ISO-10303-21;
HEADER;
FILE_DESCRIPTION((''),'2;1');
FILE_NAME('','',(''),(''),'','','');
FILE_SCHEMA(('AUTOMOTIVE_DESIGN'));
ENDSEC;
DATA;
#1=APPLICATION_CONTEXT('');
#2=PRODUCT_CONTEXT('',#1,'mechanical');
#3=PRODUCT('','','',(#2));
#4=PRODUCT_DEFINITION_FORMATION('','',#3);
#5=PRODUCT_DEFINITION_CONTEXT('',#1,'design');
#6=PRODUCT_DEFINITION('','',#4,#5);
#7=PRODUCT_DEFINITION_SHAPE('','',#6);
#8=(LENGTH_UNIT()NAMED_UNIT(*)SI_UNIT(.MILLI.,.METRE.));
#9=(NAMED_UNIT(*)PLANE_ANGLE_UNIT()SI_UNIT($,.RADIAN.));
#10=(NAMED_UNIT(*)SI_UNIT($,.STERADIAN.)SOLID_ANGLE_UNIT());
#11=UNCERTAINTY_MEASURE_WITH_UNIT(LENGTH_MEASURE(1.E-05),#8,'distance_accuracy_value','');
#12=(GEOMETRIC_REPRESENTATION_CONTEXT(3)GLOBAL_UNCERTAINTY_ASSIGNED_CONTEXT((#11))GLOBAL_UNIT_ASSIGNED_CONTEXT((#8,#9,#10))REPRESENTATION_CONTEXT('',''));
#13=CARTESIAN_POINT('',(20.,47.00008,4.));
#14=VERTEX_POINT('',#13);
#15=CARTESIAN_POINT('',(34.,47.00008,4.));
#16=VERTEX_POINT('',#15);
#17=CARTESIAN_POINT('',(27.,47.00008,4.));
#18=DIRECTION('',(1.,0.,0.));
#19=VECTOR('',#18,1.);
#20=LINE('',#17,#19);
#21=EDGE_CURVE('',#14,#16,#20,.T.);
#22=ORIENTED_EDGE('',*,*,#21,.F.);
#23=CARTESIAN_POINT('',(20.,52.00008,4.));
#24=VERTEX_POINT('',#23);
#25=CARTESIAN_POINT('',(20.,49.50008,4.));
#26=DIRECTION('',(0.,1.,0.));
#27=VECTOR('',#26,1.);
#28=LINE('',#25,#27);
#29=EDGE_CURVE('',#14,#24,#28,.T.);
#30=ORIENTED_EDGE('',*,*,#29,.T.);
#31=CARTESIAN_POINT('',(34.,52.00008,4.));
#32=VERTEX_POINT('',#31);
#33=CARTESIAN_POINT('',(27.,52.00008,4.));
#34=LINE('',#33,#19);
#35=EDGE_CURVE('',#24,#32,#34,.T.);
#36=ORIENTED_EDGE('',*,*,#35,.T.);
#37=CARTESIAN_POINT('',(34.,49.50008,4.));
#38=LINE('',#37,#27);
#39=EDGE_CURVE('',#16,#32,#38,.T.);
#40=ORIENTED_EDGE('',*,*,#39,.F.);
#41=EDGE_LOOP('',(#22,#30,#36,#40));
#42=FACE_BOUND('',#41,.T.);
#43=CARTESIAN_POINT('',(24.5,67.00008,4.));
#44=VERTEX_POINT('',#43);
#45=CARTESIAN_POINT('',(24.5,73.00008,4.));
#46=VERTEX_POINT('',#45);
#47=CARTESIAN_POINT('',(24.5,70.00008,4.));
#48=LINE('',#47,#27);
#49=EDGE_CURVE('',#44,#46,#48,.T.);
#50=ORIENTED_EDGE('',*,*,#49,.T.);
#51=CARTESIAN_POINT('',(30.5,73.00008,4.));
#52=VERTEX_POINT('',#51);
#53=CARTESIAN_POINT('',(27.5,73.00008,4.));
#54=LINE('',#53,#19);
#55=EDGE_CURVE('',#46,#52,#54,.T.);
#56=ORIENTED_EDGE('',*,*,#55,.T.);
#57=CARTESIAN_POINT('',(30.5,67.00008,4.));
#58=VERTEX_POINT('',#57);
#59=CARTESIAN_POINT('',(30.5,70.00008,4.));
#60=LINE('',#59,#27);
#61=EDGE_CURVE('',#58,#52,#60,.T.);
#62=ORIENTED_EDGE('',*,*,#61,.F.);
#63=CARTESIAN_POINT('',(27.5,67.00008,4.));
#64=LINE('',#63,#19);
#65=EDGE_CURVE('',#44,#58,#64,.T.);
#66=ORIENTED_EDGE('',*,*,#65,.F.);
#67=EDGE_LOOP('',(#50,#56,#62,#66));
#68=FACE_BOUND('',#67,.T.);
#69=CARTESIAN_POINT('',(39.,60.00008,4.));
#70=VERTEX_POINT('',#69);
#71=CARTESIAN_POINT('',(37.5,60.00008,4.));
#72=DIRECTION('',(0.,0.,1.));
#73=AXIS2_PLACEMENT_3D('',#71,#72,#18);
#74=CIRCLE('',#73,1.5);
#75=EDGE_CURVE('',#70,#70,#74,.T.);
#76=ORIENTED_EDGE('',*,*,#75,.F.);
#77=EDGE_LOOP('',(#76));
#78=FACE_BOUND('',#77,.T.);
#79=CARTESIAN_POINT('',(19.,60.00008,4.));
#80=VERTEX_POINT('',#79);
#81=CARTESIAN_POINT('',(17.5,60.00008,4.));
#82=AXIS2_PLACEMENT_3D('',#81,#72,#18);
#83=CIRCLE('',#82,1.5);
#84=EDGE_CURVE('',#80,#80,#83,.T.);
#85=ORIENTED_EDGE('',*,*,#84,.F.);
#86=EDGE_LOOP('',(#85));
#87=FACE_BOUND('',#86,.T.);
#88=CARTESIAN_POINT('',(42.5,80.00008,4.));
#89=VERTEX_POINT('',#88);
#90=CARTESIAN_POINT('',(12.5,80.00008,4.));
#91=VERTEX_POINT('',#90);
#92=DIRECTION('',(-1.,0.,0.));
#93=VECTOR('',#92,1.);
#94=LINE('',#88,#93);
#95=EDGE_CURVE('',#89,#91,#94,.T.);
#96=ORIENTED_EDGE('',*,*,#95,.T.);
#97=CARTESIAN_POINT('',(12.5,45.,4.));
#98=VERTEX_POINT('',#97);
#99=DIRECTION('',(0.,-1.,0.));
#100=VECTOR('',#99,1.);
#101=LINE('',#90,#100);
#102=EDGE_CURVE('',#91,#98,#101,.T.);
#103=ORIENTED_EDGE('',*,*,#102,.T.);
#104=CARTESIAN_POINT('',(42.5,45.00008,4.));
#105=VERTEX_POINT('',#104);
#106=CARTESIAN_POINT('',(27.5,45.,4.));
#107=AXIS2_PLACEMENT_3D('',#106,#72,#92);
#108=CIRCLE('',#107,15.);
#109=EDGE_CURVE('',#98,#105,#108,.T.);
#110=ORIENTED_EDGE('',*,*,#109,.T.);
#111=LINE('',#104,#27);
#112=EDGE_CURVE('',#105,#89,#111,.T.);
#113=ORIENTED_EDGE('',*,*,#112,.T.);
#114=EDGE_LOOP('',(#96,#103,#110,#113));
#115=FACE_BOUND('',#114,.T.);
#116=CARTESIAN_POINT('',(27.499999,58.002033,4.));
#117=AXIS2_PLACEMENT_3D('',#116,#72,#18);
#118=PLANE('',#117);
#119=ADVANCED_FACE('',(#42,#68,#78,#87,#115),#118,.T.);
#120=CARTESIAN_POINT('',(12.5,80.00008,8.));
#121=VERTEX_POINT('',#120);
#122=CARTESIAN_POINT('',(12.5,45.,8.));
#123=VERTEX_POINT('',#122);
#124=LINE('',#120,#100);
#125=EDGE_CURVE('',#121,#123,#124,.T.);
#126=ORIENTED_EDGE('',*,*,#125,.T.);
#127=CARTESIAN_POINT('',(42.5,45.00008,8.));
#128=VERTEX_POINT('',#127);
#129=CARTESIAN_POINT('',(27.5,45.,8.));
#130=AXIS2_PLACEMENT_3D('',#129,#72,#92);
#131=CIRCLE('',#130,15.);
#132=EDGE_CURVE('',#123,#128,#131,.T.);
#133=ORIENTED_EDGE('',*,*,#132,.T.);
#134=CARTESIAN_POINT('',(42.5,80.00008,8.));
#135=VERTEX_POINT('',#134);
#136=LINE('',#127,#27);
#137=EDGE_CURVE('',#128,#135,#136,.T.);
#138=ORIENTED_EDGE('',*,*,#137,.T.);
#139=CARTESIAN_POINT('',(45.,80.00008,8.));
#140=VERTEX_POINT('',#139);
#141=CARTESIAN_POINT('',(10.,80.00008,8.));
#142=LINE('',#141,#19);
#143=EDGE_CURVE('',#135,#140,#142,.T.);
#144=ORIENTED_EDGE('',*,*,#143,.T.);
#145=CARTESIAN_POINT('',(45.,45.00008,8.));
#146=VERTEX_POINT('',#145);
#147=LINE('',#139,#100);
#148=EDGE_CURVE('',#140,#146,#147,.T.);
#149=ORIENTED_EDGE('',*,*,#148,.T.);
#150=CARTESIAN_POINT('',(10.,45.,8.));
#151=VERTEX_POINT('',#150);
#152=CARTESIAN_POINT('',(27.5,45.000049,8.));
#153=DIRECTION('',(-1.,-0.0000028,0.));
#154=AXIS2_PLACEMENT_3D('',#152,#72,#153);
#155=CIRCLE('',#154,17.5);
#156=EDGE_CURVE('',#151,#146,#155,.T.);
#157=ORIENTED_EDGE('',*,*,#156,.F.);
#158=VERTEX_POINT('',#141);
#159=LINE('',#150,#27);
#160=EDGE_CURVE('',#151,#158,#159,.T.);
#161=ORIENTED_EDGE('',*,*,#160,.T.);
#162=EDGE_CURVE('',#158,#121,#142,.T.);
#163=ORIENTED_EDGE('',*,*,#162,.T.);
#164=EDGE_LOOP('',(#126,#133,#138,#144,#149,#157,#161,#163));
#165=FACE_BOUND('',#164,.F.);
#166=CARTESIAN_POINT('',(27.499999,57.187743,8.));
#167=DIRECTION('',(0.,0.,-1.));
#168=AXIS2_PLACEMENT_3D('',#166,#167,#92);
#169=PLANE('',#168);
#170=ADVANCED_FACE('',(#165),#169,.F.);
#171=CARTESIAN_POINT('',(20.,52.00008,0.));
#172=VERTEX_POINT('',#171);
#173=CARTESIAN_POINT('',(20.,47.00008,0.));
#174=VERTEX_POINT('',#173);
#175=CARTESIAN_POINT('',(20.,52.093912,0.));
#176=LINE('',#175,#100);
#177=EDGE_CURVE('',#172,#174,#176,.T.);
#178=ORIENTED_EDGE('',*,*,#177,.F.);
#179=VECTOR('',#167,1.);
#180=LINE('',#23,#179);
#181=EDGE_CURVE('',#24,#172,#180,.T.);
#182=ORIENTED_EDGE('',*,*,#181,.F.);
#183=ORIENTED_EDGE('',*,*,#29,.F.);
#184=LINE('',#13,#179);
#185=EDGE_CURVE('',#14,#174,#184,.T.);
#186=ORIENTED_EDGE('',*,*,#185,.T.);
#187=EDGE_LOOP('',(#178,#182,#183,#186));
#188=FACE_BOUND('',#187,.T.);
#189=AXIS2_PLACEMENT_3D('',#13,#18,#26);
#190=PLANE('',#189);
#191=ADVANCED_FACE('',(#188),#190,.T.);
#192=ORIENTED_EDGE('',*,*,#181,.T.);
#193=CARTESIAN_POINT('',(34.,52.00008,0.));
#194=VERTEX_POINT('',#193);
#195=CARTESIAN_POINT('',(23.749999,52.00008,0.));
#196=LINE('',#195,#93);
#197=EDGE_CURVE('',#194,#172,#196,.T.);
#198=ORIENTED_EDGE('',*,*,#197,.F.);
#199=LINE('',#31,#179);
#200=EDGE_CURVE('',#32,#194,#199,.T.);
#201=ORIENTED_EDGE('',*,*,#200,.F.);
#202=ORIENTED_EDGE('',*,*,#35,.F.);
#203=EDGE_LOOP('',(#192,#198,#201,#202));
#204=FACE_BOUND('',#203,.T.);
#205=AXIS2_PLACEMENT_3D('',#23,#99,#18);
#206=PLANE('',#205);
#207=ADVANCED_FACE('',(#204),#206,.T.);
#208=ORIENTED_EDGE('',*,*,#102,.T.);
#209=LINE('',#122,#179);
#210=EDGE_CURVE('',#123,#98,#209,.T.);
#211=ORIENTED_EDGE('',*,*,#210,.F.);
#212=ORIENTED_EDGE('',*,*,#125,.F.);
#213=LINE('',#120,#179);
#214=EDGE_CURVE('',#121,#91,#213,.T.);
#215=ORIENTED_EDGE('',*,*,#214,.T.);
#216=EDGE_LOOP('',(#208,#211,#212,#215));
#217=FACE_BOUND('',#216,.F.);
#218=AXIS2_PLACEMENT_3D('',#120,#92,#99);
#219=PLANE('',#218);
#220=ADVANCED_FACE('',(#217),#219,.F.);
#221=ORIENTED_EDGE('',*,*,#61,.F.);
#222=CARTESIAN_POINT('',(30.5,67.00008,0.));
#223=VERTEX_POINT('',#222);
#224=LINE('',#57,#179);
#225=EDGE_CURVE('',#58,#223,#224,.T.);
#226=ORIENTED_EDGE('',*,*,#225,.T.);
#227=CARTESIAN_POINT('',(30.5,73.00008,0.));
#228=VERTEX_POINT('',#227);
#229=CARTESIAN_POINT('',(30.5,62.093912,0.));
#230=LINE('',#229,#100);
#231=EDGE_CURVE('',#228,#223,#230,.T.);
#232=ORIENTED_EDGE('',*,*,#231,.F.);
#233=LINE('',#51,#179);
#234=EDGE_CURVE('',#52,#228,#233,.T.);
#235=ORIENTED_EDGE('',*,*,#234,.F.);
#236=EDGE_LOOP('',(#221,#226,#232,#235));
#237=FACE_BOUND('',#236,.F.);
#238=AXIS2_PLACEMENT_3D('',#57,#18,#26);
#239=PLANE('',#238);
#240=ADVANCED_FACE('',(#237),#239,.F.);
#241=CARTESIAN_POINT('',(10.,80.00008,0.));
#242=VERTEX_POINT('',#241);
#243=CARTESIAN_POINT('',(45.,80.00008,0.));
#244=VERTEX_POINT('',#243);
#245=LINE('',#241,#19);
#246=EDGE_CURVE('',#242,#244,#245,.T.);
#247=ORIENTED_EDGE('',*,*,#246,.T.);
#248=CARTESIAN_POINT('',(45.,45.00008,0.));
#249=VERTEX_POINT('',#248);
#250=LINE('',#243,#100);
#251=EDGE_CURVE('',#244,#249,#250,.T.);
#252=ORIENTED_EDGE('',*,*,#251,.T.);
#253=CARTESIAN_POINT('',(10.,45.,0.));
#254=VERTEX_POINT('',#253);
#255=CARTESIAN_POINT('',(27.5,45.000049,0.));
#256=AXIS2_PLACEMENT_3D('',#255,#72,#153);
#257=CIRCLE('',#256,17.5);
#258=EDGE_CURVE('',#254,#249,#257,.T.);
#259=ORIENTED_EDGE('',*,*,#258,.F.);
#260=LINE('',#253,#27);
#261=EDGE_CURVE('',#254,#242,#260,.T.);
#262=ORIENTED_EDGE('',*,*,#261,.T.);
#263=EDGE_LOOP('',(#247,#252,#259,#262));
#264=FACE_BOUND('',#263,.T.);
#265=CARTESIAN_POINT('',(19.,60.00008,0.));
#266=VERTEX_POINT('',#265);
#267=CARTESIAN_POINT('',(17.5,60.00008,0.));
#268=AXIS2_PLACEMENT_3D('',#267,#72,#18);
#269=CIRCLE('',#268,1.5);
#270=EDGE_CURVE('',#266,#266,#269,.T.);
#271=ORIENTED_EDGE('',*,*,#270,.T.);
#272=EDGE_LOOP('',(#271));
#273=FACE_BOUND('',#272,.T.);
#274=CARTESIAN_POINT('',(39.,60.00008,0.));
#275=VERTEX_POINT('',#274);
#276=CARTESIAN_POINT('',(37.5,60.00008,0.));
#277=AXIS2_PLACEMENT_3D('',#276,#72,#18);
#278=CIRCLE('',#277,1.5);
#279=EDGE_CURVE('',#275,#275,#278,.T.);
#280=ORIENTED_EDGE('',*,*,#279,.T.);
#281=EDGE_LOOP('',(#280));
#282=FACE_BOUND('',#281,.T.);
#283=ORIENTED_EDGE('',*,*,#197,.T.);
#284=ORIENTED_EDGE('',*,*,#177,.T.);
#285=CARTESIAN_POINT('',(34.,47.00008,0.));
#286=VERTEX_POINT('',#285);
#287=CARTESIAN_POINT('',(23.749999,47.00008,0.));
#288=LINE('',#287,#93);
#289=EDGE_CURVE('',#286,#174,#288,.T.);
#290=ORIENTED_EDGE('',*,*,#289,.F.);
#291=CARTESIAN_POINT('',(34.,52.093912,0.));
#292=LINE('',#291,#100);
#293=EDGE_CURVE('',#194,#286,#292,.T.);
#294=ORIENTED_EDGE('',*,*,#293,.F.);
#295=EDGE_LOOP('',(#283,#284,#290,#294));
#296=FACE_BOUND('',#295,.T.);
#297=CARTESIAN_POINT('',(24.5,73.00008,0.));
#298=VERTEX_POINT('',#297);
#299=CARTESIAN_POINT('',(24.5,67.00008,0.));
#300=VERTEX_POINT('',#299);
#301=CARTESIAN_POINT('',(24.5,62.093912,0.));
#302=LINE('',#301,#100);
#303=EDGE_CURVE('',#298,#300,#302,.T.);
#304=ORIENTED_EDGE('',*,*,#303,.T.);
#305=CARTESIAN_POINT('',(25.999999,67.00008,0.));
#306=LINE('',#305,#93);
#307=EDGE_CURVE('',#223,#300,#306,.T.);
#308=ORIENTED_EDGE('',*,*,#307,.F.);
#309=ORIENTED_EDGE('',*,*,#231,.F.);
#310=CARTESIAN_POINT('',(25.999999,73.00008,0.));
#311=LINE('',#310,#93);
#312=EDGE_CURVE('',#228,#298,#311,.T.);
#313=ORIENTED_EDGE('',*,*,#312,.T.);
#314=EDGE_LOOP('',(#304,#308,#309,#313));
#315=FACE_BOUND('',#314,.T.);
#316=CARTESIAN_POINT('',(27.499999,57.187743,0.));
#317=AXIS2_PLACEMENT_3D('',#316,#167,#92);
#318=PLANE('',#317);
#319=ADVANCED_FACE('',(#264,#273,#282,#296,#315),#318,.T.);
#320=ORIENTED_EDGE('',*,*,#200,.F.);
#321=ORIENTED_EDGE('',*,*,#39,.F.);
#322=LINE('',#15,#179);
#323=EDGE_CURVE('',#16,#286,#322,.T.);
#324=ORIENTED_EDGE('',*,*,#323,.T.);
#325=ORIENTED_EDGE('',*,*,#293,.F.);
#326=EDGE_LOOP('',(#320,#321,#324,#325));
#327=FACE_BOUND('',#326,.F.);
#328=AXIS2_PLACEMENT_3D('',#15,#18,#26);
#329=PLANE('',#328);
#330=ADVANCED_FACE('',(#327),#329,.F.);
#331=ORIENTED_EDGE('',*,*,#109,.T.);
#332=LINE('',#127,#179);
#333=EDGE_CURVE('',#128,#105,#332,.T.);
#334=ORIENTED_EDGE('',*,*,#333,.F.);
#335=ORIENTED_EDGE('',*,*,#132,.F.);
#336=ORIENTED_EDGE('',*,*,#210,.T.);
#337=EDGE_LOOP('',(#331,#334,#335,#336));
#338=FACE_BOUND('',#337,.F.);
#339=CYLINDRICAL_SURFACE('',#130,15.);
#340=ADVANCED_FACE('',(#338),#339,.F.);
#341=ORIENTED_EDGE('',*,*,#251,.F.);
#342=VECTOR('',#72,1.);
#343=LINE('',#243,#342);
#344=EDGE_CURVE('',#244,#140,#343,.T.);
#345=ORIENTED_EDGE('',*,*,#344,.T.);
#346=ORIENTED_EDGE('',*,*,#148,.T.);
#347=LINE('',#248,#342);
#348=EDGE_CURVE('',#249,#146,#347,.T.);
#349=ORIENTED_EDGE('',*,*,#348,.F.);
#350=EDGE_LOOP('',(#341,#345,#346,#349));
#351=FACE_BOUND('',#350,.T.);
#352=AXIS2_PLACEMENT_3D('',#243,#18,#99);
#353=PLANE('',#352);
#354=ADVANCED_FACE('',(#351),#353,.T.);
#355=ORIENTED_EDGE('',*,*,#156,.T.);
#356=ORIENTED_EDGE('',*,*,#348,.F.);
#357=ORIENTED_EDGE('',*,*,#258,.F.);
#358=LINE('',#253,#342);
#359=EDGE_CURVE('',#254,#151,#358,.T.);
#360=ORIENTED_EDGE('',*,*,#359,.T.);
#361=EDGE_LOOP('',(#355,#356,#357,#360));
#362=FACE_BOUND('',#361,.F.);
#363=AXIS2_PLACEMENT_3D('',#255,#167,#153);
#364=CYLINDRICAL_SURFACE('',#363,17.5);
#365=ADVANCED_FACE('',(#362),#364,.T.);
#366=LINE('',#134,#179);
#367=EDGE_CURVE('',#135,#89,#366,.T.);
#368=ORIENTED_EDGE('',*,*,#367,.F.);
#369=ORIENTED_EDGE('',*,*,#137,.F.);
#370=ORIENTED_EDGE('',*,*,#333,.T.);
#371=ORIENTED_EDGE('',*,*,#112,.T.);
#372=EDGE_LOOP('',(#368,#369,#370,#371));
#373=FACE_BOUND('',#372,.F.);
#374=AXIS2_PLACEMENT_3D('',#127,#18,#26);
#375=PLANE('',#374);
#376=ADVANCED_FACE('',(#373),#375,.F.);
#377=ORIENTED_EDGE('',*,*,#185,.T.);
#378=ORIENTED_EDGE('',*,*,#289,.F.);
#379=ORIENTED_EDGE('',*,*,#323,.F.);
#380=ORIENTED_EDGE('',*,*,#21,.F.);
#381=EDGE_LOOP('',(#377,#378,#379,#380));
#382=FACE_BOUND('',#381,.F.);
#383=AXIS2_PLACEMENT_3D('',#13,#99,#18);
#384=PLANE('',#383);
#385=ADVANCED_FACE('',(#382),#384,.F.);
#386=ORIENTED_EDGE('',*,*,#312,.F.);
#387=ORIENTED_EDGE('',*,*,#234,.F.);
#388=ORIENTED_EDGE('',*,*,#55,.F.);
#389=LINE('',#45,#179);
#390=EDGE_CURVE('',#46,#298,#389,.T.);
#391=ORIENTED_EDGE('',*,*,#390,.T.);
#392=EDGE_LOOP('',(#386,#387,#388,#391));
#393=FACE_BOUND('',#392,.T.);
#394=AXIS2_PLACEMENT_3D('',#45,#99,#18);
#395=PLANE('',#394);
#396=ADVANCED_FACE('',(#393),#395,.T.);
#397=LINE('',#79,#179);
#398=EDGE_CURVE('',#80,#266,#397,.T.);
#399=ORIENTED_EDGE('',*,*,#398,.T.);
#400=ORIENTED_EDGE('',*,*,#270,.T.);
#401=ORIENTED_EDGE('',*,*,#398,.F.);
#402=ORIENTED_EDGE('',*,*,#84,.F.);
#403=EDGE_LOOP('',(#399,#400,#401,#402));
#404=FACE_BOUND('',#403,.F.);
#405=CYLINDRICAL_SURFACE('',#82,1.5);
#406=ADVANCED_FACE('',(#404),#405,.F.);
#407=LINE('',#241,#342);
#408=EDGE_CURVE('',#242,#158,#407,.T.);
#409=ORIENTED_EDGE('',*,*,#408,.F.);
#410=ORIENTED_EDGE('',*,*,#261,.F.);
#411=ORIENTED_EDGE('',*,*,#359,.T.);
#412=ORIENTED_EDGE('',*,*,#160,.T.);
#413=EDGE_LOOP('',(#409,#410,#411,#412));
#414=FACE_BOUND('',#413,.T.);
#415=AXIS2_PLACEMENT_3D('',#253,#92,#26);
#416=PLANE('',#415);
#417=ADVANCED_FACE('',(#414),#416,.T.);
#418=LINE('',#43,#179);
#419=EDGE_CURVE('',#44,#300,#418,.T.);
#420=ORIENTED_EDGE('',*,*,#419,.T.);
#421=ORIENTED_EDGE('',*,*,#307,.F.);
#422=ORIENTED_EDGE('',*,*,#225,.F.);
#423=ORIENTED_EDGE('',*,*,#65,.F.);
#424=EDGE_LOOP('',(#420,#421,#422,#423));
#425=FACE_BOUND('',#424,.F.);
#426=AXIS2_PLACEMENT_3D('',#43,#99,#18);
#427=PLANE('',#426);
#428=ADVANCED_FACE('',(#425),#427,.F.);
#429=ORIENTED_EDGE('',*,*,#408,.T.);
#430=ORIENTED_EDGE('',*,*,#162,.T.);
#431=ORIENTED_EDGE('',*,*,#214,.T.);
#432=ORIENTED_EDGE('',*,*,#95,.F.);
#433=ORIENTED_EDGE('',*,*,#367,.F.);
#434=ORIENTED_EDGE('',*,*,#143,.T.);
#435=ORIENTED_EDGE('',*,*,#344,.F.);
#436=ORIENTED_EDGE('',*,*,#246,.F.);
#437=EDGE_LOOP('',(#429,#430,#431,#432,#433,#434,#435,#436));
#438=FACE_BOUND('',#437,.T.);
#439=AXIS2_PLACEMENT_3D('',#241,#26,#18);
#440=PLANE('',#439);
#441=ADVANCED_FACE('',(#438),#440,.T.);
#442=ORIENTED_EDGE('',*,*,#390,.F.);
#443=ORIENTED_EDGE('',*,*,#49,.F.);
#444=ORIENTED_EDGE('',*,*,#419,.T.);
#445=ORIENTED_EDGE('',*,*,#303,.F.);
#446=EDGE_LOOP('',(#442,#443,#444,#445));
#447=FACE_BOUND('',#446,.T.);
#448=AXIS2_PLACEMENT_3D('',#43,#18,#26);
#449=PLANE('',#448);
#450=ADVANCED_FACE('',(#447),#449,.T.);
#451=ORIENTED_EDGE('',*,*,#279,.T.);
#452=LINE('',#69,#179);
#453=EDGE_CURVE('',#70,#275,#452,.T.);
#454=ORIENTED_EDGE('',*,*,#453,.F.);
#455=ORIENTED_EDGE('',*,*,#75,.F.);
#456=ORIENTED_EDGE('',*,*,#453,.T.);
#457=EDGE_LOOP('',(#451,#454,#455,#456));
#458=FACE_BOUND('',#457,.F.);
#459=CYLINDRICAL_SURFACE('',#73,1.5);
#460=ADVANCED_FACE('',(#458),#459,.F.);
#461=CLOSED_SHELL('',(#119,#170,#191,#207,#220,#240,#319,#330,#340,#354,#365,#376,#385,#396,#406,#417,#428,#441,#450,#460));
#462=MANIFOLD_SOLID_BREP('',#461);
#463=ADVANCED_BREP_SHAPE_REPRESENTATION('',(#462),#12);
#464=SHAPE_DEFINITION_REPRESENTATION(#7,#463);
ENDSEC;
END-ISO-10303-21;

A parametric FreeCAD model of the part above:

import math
import FreeCAD as App
import Part
import Sketcher
from FreeCAD import Vector
Q = App.Units.Quantity


def add_polygon(sketch, points):
    """Adds a closed chain of lines whose ends are joined by coincident constraints."""
    first, n = sketch.GeometryCount, len(points)
    for a, b in zip(points, points[1:] + points[:1]):
        sketch.addGeometry(Part.LineSegment(App.Vector(*a, 0), App.Vector(*b, 0)), False)
    for i in range(n):
        sketch.addConstraint(Sketcher.Constraint("Coincident", first + i, 2, first + (i + 1) % n, 1))

doc = App.newDocument("Part")
body = doc.addObject("PartDesign::Body", "Body")

sketch1 = doc.addObject("Sketcher::SketchObject", "Sketch")
body.addObject(sketch1)
sketch1.AttachmentSupport = (doc.XY_Plane, [""])
sketch1.MapMode = "FlatFace"
sketch1.addGeometry([
    Part.LineSegment(Vector(45, 80.00008, 0), Vector(10, 80.00008, 0)),
    Part.LineSegment(Vector(10, 80.00008, 0), Vector(10, 45, 0)),
    Part.ArcOfCircle(Part.Circle(Vector(27.5, 45.000049, 0), Vector(0, 0, 1), 17.5), math.radians(-179.99984), math.radians(0.000101)),
    Part.LineSegment(Vector(45, 45.00008, 0), Vector(45, 80.00008, 0)),
], False)
sketch1.addConstraint([
    Sketcher.Constraint("Coincident", 0, 2, 1, 1),
    Sketcher.Constraint("Coincident", 1, 2, 2, 1),
    Sketcher.Constraint("Coincident", 2, 2, 3, 1),
    Sketcher.Constraint("Coincident", 3, 2, 0, 1),
    Sketcher.Constraint("Horizontal", 0),
    Sketcher.Constraint("Vertical", 1),
    Sketcher.Constraint("Vertical", 3),
    Sketcher.Constraint("Radius", 2, Q("17.5 mm")),
    Sketcher.Constraint("DistanceY", 3, 1, 3, 2, Q("35 mm")),
    Sketcher.Constraint("DistanceX", -1, 1, 0, 2, Q("10 mm")),
    Sketcher.Constraint("DistanceY", -1, 1, 1, 2, Q("45 mm")),
    Sketcher.Constraint("DistanceY", 1, 2, 1, 1, Q("35.00008 mm")),
    Sketcher.Constraint("DistanceY", -1, 1, 2, 3, Q("45.000049 mm")),
])
pad1 = doc.addObject("PartDesign::Pad", "Pad")
body.addObject(pad1)
pad1.Profile = sketch1
pad1.Length = 8

sketch2 = doc.addObject("Sketcher::SketchObject", "Sketch001")
body.addObject(sketch2)
sketch2.AttachmentSupport = (doc.XY_Plane, [""])
sketch2.MapMode = "FlatFace"
sketch2.AttachmentOffset = App.Placement(Vector(0, 0, 8), App.Rotation())
sketch2.addGeometry([
    Part.LineSegment(Vector(12, 80, 0), Vector(12, 45, 0)),
    Part.ArcOfCircle(Part.Circle(Vector(28, 45, 0), Vector(0, 0, 1), 15), math.radians(180), math.radians(360)),
    Part.LineSegment(Vector(42, 45, 0), Vector(42, 80, 0)),
    Part.LineSegment(Vector(42, 80, 0), Vector(12, 80, 0)),
], False)
sketch2.addConstraint([
    Sketcher.Constraint("Tangent", 0, 2, 1, 1),
    Sketcher.Constraint("Coincident", 1, 2, 2, 1),
    Sketcher.Constraint("Coincident", 2, 2, 3, 1),
    Sketcher.Constraint("Coincident", 3, 2, 0, 1),
    Sketcher.Constraint("Vertical", 0),
    Sketcher.Constraint("Vertical", 2),
    Sketcher.Constraint("Horizontal", 3),
    Sketcher.Constraint("Radius", 1, Q("15 mm")),
    Sketcher.Constraint("DistanceY", 2, 1, 2, 2, Q("35 mm")),
    Sketcher.Constraint("DistanceY", -1, 1, 1, 3, Q("45 mm")),
    Sketcher.Constraint("DistanceX", -1, 1, 1, 3, Q("27.5 mm")),
    Sketcher.Constraint("DistanceY", 0, 2, 0, 1, Q("35.00008 mm")),
])
pocket1 = doc.addObject("PartDesign::Pocket", "Pocket")
body.addObject(pocket1)
pocket1.Profile = sketch2
pocket1.Length = 4

sketch3 = doc.addObject("Sketcher::SketchObject", "Sketch002")
body.addObject(sketch3)
sketch3.AttachmentSupport = (doc.XY_Plane, [""])
sketch3.MapMode = "FlatFace"
sketch3.AttachmentOffset = App.Placement(Vector(0, 0, 4), App.Rotation())
sketch3.addGeometry(Part.Circle(Vector(17.5, 60, 0), Vector(0, 0, 1), 1.5), False)
sketch3.addGeometry(Part.Circle(Vector(37.5, 60, 0), Vector(0, 0, 1), 1.5), False)
add_polygon(sketch3, [(20, 52), (20, 47), (34, 47), (34, 52)])
add_polygon(sketch3, [(24.5, 73), (24.5, 67), (30.5, 67), (30.5, 73)])
sketch3.addConstraint([
    Sketcher.Constraint("Vertical", 2),
    Sketcher.Constraint("Horizontal", 3),
    Sketcher.Constraint("Vertical", 4),
    Sketcher.Constraint("Horizontal", 5),
    Sketcher.Constraint("Vertical", 6),
    Sketcher.Constraint("Horizontal", 7),
    Sketcher.Constraint("Vertical", 8),
    Sketcher.Constraint("Horizontal", 9),
    Sketcher.Constraint("Equal", 0, 1),
    Sketcher.Constraint("Horizontal", 0, 3, 1, 3),
    Sketcher.Constraint("Equal", 9, 6),
    Sketcher.Constraint("Diameter", 0, Q("3 mm")),
    Sketcher.Constraint("DistanceX", 3, 1, 3, 2, Q("14 mm")),
    Sketcher.Constraint("DistanceX", 7, 1, 7, 2, Q("6 mm")),
    Sketcher.Constraint("DistanceY", 2, 2, 2, 1, Q("5 mm")),
    Sketcher.Constraint("DistanceX", -1, 1, 2, 2, Q("20 mm")),
    Sketcher.Constraint("DistanceX", 0, 3, 1, 3, Q("20 mm")),
    Sketcher.Constraint("DistanceY", 2, 2, 0, 3, Q("13 mm")),
    Sketcher.Constraint("DistanceX", 0, 3, 6, 2, Q("7 mm")),
    Sketcher.Constraint("DistanceY", 0, 3, 6, 2, Q("7 mm")),
    Sketcher.Constraint("DistanceX", -1, 1, 0, 3, Q("17.5 mm")),
    Sketcher.Constraint("DistanceY", -1, 1, 0, 3, Q("60.00008 mm")),
])
pocket2 = doc.addObject("PartDesign::Pocket", "Pocket001")
body.addObject(pocket2)
pocket2.Profile = sketch3
pocket2.Length = 5

doc.recompute()
